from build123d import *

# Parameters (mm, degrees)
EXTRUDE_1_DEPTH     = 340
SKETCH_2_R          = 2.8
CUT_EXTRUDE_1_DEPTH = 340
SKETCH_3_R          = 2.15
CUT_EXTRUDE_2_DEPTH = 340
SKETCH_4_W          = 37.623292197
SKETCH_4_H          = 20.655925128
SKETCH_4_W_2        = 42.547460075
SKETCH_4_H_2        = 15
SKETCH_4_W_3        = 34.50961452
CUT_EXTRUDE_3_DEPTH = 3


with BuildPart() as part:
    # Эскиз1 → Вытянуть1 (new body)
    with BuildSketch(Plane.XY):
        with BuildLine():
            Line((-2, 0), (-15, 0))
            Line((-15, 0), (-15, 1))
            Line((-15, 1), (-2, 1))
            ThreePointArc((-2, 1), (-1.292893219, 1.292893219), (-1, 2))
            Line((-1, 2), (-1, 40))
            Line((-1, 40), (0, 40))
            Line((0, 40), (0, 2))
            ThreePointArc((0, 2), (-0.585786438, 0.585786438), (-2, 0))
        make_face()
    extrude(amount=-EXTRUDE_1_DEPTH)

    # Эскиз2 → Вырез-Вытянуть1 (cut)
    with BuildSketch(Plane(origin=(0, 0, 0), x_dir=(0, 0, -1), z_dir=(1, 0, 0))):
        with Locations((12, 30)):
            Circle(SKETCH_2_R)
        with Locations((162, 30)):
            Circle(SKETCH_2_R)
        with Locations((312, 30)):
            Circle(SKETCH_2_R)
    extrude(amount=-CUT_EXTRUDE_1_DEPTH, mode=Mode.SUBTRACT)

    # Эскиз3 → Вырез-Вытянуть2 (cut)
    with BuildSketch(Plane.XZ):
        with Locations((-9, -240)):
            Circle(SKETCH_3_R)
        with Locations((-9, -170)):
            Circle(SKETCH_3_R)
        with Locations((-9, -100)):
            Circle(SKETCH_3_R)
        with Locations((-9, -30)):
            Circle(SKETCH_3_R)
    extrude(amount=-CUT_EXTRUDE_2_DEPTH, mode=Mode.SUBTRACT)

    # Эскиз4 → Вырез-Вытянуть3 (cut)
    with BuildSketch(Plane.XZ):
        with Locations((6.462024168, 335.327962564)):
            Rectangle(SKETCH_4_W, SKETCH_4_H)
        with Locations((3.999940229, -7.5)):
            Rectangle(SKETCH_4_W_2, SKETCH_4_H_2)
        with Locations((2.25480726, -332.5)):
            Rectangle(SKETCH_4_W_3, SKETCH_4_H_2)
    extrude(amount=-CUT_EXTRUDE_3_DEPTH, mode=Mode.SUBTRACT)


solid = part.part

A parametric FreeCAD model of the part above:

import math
import FreeCAD as App
import Part
import Sketcher

V = App.Vector


def add_polygon(sketch, points):
    """Adds a closed chain of lines whose ends are joined by coincident constraints."""
    first, n = sketch.GeometryCount, len(points)
    for a, b in zip(points, points[1:] + points[:1]):
        sketch.addGeometry(Part.LineSegment(App.Vector(*a, 0), App.Vector(*b, 0)), False)
    for i in range(n):
        sketch.addConstraint(Sketcher.Constraint("Coincident", first + i, 2, first + (i + 1) % n, 1))

doc = App.newDocument("Part")
body = doc.addObject("PartDesign::Body", "Body")

# Sketch on XY plane
sketch1 = doc.addObject("Sketcher::SketchObject", "Sketch")
body.addObject(sketch1)
sketch1.AttachmentSupport = (doc.XY_Plane, [""])
sketch1.MapMode = "FlatFace"
sketch1.addGeometry(Part.LineSegment(V(-15, 0, 0), V(-2, 0, 0)), False)
sketch1.addGeometry(Part.ArcOfCircle(Part.Circle(V(-2, 2, 0), V(0, 0, 1), 2), math.radians(-90), math.radians(0)), False)
sketch1.addGeometry(Part.LineSegment(V(0, 2, 0), V(0, 40, 0)), False)
sketch1.addGeometry(Part.LineSegment(V(0, 40, 0), V(-1, 40, 0)), False)
sketch1.addGeometry(Part.LineSegment(V(-1, 40, 0), V(-1, 2, 0)), False)
sketch1.addGeometry(Part.ArcOfCircle(Part.Circle(V(-2, 2, 0), V(0, 0, 1), 1), math.radians(-90), math.radians(0)), False)
sketch1.addGeometry(Part.LineSegment(V(-2, 1, 0), V(-15, 1, 0)), False)
sketch1.addGeometry(Part.LineSegment(V(-15, 1, 0), V(-15, 0, 0)), False)
sketch1.addConstraint(Sketcher.Constraint("Tangent", 0, 2, 1, 1))
sketch1.addConstraint(Sketcher.Constraint("Tangent", 1, 2, 2, 1))
sketch1.addConstraint(Sketcher.Constraint("Coincident", 2, 2, 3, 1))
sketch1.addConstraint(Sketcher.Constraint("Coincident", 3, 2, 4, 1))
sketch1.addConstraint(Sketcher.Constraint("Tangent", 4, 2, 5, 2))
sketch1.addConstraint(Sketcher.Constraint("Tangent", 5, 1, 6, 1))
sketch1.addConstraint(Sketcher.Constraint("Coincident", 6, 2, 7, 1))
sketch1.addConstraint(Sketcher.Constraint("Coincident", 7, 2, 0, 1))
sketch1.addConstraint(Sketcher.Constraint("Horizontal", 0))
sketch1.addConstraint(Sketcher.Constraint("Vertical", 2))
sketch1.addConstraint(Sketcher.Constraint("Horizontal", 3))
sketch1.addConstraint(Sketcher.Constraint("Vertical", 4))
sketch1.addConstraint(Sketcher.Constraint("Horizontal", 6))
sketch1.addConstraint(Sketcher.Constraint("Vertical", 7))
sketch1.addConstraint(Sketcher.Constraint("Coincident", 5, 3, 1, 3))
sketch1.addConstraint(Sketcher.Constraint("PointOnObject", 0, 2, -1))
sketch1.addConstraint(Sketcher.Constraint("PointOnObject", 1, 2, -2))
sketch1.addConstraint(Sketcher.Constraint("Radius", 1, 2.0))
sketch1.addConstraint(Sketcher.Constraint("Radius", 5, 1.0))
sketch1.addConstraint(Sketcher.Constraint("DistanceX", 0, 1, 0, 2, 13.0))
sketch1.addConstraint(Sketcher.Constraint("DistanceY", 2, 1, 2, 2, 38.0))
pad1 = doc.addObject("PartDesign::Pad", "Pad")
body.addObject(pad1)
pad1.Profile = sketch1
pad1.Length = 340
pad1.Reversed = True

# Sketch on YZ plane
sketch2 = doc.addObject("Sketcher::SketchObject", "Sketch001")
body.addObject(sketch2)
sketch2.AttachmentSupport = (doc.YZ_Plane, [""])
sketch2.MapMode = "FlatFace"
sketch2.addGeometry(Part.Circle(V(30, -12, 0), V(0, 0, 1), 2.8), False)
sketch2.addGeometry(Part.Circle(V(30, -162, 0), V(0, 0, 1), 2.8), False)
sketch2.addGeometry(Part.Circle(V(30, -312, 0), V(0, 0, 1), 2.8), False)
sketch2.addConstraint(Sketcher.Constraint("Equal", 0, 1))
sketch2.addConstraint(Sketcher.Constraint("Equal", 1, 2))
sketch2.addConstraint(Sketcher.Constraint("Vertical", 0, 3, 1, 3))
sketch2.addConstraint(Sketcher.Constraint("Vertical", 1, 3, 2, 3))
sketch2.addConstraint(Sketcher.Constraint("Diameter", 0, 5.6))
sketch2.addConstraint(Sketcher.Constraint("DistanceX", -1, 1, 0, 3, 30.0))
sketch2.addConstraint(Sketcher.Constraint("DistanceY", 0, 3, -1, 1, 12.0))
sketch2.addConstraint(Sketcher.Constraint("DistanceY", 1, 3, -1, 1, 162.0))
sketch2.addConstraint(Sketcher.Constraint("DistanceY", 2, 3, -1, 1, 312.0))
pocket1 = doc.addObject("PartDesign::Pocket", "Pocket")
body.addObject(pocket1)
pocket1.Profile = sketch2
pocket1.Length = 340

# Sketch on XZ plane
sketch3 = doc.addObject("Sketcher::SketchObject", "Sketch002")
body.addObject(sketch3)
sketch3.AttachmentSupport = (doc.XZ_Plane, [""])
sketch3.MapMode = "FlatFace"
sketch3.addGeometry(Part.Circle(V(-9, -240, 0), V(0, 0, 1), 2.1), False)
sketch3.addGeometry(Part.Circle(V(-9, -170, 0), V(0, 0, 1), 2.1), False)
sketch3.addGeometry(Part.Circle(V(-9, -100, 0), V(0, 0, 1), 2.1), False)
sketch3.addGeometry(Part.Circle(V(-9, -30, 0), V(0, 0, 1), 2.1), False)
sketch3.addConstraint(Sketcher.Constraint("Equal", 0, 1))
sketch3.addConstraint(Sketcher.Constraint("Equal", 1, 2))
sketch3.addConstraint(Sketcher.Constraint("Equal", 2, 3))
sketch3.addConstraint(Sketcher.Constraint("Vertical", 0, 3, 1, 3))
sketch3.addConstraint(Sketcher.Constraint("Vertical", 1, 3, 2, 3))
sketch3.addConstraint(Sketcher.Constraint("Vertical", 2, 3, 3, 3))
sketch3.addConstraint(Sketcher.Constraint("Diameter", 0, 4.3))
sketch3.addConstraint(Sketcher.Constraint("DistanceX", 0, 3, -1, 1, 9.0))
sketch3.addConstraint(Sketcher.Constraint("DistanceY", 0, 3, -1, 1, 240.0))
sketch3.addConstraint(Sketcher.Constraint("DistanceY", 1, 3, -1, 1, 170.0))
sketch3.addConstraint(Sketcher.Constraint("DistanceY", 2, 3, -1, 1, 100.0))
sketch3.addConstraint(Sketcher.Constraint("DistanceY", 3, 3, -1, 1, 30.0))
pocket2 = doc.addObject("PartDesign::Pocket", "Pocket001")
body.addObject(pocket2)
pocket2.Profile = sketch3
pocket2.Length = 340

# Sketch on XZ plane
sketch4 = doc.addObject("Sketcher::SketchObject", "Sketch003")
body.addObject(sketch4)
sketch4.AttachmentSupport = (doc.XZ_Plane, [""])
sketch4.MapMode = "FlatFace"
add_polygon(sketch4, [(-12, 346), (-12, 325), (25, 325), (25, 346)])  # lines 0-3
add_polygon(sketch4, [(-17, 0), (-17, -15), (25, -15), (25, 0)])  # lines 4-7
add_polygon(sketch4, [(-15, -325), (-15, -340), (20, -340), (20, -325)])  # lines 8-11
sketch4.addConstraint(Sketcher.Constraint("Vertical", 0))
sketch4.addConstraint(Sketcher.Constraint("Horizontal", 1))
sketch4.addConstraint(Sketcher.Constraint("Vertical", 2))
sketch4.addConstraint(Sketcher.Constraint("Horizontal", 3))
sketch4.addConstraint(Sketcher.Constraint("Vertical", 4))
sketch4.addConstraint(Sketcher.Constraint("Horizontal", 5))
sketch4.addConstraint(Sketcher.Constraint("Vertical", 6))
sketch4.addConstraint(Sketcher.Constraint("Horizontal", 7))
sketch4.addConstraint(Sketcher.Constraint("Vertical", 8))
sketch4.addConstraint(Sketcher.Constraint("Horizontal", 9))
sketch4.addConstraint(Sketcher.Constraint("Vertical", 10))
sketch4.addConstraint(Sketcher.Constraint("Horizontal", 11))
sketch4.addConstraint(Sketcher.Constraint("PointOnObject", 6, 2, -1))
sketch4.addConstraint(Sketcher.Constraint("Vertical", 2, 2, 5, 2))
sketch4.addConstraint(Sketcher.Constraint("Equal", 6, 8))
sketch4.addConstraint(Sketcher.Constraint("DistanceY", 4, 2, 4, 1, 15.0))
sketch4.addConstraint(Sketcher.Constraint("DistanceY", -1, 1, 0, 2, 325.0))
sketch4.addConstraint(Sketcher.Constraint("DistanceX", 8, 2, -1, 1, 15.0))
sketch4.addConstraint(Sketcher.Constraint("DistanceY", 8, 2, -1, 1, 340.0))
sketch4.addConstraint(Sketcher.Constraint("DistanceX", 5, 1, 5, 2, 42.54746))
sketch4.addConstraint(Sketcher.Constraint("DistanceX", 1, 1, 1, 2, 37.623292))
sketch4.addConstraint(Sketcher.Constraint("DistanceX", 9, 1, 9, 2, 34.509615))
sketch4.addConstraint(Sketcher.Constraint("DistanceY", 0, 2, 0, 1, 20.655925))
sketch4.addConstraint(Sketcher.Constraint("DistanceX", 0, 2, -1, 1, 12.349622))
pocket3 = doc.addObject("PartDesign::Pocket", "Pocket002")
body.addObject(pocket3)
pocket3.Profile = sketch4
pocket3.Length = 3

doc.recompute()
